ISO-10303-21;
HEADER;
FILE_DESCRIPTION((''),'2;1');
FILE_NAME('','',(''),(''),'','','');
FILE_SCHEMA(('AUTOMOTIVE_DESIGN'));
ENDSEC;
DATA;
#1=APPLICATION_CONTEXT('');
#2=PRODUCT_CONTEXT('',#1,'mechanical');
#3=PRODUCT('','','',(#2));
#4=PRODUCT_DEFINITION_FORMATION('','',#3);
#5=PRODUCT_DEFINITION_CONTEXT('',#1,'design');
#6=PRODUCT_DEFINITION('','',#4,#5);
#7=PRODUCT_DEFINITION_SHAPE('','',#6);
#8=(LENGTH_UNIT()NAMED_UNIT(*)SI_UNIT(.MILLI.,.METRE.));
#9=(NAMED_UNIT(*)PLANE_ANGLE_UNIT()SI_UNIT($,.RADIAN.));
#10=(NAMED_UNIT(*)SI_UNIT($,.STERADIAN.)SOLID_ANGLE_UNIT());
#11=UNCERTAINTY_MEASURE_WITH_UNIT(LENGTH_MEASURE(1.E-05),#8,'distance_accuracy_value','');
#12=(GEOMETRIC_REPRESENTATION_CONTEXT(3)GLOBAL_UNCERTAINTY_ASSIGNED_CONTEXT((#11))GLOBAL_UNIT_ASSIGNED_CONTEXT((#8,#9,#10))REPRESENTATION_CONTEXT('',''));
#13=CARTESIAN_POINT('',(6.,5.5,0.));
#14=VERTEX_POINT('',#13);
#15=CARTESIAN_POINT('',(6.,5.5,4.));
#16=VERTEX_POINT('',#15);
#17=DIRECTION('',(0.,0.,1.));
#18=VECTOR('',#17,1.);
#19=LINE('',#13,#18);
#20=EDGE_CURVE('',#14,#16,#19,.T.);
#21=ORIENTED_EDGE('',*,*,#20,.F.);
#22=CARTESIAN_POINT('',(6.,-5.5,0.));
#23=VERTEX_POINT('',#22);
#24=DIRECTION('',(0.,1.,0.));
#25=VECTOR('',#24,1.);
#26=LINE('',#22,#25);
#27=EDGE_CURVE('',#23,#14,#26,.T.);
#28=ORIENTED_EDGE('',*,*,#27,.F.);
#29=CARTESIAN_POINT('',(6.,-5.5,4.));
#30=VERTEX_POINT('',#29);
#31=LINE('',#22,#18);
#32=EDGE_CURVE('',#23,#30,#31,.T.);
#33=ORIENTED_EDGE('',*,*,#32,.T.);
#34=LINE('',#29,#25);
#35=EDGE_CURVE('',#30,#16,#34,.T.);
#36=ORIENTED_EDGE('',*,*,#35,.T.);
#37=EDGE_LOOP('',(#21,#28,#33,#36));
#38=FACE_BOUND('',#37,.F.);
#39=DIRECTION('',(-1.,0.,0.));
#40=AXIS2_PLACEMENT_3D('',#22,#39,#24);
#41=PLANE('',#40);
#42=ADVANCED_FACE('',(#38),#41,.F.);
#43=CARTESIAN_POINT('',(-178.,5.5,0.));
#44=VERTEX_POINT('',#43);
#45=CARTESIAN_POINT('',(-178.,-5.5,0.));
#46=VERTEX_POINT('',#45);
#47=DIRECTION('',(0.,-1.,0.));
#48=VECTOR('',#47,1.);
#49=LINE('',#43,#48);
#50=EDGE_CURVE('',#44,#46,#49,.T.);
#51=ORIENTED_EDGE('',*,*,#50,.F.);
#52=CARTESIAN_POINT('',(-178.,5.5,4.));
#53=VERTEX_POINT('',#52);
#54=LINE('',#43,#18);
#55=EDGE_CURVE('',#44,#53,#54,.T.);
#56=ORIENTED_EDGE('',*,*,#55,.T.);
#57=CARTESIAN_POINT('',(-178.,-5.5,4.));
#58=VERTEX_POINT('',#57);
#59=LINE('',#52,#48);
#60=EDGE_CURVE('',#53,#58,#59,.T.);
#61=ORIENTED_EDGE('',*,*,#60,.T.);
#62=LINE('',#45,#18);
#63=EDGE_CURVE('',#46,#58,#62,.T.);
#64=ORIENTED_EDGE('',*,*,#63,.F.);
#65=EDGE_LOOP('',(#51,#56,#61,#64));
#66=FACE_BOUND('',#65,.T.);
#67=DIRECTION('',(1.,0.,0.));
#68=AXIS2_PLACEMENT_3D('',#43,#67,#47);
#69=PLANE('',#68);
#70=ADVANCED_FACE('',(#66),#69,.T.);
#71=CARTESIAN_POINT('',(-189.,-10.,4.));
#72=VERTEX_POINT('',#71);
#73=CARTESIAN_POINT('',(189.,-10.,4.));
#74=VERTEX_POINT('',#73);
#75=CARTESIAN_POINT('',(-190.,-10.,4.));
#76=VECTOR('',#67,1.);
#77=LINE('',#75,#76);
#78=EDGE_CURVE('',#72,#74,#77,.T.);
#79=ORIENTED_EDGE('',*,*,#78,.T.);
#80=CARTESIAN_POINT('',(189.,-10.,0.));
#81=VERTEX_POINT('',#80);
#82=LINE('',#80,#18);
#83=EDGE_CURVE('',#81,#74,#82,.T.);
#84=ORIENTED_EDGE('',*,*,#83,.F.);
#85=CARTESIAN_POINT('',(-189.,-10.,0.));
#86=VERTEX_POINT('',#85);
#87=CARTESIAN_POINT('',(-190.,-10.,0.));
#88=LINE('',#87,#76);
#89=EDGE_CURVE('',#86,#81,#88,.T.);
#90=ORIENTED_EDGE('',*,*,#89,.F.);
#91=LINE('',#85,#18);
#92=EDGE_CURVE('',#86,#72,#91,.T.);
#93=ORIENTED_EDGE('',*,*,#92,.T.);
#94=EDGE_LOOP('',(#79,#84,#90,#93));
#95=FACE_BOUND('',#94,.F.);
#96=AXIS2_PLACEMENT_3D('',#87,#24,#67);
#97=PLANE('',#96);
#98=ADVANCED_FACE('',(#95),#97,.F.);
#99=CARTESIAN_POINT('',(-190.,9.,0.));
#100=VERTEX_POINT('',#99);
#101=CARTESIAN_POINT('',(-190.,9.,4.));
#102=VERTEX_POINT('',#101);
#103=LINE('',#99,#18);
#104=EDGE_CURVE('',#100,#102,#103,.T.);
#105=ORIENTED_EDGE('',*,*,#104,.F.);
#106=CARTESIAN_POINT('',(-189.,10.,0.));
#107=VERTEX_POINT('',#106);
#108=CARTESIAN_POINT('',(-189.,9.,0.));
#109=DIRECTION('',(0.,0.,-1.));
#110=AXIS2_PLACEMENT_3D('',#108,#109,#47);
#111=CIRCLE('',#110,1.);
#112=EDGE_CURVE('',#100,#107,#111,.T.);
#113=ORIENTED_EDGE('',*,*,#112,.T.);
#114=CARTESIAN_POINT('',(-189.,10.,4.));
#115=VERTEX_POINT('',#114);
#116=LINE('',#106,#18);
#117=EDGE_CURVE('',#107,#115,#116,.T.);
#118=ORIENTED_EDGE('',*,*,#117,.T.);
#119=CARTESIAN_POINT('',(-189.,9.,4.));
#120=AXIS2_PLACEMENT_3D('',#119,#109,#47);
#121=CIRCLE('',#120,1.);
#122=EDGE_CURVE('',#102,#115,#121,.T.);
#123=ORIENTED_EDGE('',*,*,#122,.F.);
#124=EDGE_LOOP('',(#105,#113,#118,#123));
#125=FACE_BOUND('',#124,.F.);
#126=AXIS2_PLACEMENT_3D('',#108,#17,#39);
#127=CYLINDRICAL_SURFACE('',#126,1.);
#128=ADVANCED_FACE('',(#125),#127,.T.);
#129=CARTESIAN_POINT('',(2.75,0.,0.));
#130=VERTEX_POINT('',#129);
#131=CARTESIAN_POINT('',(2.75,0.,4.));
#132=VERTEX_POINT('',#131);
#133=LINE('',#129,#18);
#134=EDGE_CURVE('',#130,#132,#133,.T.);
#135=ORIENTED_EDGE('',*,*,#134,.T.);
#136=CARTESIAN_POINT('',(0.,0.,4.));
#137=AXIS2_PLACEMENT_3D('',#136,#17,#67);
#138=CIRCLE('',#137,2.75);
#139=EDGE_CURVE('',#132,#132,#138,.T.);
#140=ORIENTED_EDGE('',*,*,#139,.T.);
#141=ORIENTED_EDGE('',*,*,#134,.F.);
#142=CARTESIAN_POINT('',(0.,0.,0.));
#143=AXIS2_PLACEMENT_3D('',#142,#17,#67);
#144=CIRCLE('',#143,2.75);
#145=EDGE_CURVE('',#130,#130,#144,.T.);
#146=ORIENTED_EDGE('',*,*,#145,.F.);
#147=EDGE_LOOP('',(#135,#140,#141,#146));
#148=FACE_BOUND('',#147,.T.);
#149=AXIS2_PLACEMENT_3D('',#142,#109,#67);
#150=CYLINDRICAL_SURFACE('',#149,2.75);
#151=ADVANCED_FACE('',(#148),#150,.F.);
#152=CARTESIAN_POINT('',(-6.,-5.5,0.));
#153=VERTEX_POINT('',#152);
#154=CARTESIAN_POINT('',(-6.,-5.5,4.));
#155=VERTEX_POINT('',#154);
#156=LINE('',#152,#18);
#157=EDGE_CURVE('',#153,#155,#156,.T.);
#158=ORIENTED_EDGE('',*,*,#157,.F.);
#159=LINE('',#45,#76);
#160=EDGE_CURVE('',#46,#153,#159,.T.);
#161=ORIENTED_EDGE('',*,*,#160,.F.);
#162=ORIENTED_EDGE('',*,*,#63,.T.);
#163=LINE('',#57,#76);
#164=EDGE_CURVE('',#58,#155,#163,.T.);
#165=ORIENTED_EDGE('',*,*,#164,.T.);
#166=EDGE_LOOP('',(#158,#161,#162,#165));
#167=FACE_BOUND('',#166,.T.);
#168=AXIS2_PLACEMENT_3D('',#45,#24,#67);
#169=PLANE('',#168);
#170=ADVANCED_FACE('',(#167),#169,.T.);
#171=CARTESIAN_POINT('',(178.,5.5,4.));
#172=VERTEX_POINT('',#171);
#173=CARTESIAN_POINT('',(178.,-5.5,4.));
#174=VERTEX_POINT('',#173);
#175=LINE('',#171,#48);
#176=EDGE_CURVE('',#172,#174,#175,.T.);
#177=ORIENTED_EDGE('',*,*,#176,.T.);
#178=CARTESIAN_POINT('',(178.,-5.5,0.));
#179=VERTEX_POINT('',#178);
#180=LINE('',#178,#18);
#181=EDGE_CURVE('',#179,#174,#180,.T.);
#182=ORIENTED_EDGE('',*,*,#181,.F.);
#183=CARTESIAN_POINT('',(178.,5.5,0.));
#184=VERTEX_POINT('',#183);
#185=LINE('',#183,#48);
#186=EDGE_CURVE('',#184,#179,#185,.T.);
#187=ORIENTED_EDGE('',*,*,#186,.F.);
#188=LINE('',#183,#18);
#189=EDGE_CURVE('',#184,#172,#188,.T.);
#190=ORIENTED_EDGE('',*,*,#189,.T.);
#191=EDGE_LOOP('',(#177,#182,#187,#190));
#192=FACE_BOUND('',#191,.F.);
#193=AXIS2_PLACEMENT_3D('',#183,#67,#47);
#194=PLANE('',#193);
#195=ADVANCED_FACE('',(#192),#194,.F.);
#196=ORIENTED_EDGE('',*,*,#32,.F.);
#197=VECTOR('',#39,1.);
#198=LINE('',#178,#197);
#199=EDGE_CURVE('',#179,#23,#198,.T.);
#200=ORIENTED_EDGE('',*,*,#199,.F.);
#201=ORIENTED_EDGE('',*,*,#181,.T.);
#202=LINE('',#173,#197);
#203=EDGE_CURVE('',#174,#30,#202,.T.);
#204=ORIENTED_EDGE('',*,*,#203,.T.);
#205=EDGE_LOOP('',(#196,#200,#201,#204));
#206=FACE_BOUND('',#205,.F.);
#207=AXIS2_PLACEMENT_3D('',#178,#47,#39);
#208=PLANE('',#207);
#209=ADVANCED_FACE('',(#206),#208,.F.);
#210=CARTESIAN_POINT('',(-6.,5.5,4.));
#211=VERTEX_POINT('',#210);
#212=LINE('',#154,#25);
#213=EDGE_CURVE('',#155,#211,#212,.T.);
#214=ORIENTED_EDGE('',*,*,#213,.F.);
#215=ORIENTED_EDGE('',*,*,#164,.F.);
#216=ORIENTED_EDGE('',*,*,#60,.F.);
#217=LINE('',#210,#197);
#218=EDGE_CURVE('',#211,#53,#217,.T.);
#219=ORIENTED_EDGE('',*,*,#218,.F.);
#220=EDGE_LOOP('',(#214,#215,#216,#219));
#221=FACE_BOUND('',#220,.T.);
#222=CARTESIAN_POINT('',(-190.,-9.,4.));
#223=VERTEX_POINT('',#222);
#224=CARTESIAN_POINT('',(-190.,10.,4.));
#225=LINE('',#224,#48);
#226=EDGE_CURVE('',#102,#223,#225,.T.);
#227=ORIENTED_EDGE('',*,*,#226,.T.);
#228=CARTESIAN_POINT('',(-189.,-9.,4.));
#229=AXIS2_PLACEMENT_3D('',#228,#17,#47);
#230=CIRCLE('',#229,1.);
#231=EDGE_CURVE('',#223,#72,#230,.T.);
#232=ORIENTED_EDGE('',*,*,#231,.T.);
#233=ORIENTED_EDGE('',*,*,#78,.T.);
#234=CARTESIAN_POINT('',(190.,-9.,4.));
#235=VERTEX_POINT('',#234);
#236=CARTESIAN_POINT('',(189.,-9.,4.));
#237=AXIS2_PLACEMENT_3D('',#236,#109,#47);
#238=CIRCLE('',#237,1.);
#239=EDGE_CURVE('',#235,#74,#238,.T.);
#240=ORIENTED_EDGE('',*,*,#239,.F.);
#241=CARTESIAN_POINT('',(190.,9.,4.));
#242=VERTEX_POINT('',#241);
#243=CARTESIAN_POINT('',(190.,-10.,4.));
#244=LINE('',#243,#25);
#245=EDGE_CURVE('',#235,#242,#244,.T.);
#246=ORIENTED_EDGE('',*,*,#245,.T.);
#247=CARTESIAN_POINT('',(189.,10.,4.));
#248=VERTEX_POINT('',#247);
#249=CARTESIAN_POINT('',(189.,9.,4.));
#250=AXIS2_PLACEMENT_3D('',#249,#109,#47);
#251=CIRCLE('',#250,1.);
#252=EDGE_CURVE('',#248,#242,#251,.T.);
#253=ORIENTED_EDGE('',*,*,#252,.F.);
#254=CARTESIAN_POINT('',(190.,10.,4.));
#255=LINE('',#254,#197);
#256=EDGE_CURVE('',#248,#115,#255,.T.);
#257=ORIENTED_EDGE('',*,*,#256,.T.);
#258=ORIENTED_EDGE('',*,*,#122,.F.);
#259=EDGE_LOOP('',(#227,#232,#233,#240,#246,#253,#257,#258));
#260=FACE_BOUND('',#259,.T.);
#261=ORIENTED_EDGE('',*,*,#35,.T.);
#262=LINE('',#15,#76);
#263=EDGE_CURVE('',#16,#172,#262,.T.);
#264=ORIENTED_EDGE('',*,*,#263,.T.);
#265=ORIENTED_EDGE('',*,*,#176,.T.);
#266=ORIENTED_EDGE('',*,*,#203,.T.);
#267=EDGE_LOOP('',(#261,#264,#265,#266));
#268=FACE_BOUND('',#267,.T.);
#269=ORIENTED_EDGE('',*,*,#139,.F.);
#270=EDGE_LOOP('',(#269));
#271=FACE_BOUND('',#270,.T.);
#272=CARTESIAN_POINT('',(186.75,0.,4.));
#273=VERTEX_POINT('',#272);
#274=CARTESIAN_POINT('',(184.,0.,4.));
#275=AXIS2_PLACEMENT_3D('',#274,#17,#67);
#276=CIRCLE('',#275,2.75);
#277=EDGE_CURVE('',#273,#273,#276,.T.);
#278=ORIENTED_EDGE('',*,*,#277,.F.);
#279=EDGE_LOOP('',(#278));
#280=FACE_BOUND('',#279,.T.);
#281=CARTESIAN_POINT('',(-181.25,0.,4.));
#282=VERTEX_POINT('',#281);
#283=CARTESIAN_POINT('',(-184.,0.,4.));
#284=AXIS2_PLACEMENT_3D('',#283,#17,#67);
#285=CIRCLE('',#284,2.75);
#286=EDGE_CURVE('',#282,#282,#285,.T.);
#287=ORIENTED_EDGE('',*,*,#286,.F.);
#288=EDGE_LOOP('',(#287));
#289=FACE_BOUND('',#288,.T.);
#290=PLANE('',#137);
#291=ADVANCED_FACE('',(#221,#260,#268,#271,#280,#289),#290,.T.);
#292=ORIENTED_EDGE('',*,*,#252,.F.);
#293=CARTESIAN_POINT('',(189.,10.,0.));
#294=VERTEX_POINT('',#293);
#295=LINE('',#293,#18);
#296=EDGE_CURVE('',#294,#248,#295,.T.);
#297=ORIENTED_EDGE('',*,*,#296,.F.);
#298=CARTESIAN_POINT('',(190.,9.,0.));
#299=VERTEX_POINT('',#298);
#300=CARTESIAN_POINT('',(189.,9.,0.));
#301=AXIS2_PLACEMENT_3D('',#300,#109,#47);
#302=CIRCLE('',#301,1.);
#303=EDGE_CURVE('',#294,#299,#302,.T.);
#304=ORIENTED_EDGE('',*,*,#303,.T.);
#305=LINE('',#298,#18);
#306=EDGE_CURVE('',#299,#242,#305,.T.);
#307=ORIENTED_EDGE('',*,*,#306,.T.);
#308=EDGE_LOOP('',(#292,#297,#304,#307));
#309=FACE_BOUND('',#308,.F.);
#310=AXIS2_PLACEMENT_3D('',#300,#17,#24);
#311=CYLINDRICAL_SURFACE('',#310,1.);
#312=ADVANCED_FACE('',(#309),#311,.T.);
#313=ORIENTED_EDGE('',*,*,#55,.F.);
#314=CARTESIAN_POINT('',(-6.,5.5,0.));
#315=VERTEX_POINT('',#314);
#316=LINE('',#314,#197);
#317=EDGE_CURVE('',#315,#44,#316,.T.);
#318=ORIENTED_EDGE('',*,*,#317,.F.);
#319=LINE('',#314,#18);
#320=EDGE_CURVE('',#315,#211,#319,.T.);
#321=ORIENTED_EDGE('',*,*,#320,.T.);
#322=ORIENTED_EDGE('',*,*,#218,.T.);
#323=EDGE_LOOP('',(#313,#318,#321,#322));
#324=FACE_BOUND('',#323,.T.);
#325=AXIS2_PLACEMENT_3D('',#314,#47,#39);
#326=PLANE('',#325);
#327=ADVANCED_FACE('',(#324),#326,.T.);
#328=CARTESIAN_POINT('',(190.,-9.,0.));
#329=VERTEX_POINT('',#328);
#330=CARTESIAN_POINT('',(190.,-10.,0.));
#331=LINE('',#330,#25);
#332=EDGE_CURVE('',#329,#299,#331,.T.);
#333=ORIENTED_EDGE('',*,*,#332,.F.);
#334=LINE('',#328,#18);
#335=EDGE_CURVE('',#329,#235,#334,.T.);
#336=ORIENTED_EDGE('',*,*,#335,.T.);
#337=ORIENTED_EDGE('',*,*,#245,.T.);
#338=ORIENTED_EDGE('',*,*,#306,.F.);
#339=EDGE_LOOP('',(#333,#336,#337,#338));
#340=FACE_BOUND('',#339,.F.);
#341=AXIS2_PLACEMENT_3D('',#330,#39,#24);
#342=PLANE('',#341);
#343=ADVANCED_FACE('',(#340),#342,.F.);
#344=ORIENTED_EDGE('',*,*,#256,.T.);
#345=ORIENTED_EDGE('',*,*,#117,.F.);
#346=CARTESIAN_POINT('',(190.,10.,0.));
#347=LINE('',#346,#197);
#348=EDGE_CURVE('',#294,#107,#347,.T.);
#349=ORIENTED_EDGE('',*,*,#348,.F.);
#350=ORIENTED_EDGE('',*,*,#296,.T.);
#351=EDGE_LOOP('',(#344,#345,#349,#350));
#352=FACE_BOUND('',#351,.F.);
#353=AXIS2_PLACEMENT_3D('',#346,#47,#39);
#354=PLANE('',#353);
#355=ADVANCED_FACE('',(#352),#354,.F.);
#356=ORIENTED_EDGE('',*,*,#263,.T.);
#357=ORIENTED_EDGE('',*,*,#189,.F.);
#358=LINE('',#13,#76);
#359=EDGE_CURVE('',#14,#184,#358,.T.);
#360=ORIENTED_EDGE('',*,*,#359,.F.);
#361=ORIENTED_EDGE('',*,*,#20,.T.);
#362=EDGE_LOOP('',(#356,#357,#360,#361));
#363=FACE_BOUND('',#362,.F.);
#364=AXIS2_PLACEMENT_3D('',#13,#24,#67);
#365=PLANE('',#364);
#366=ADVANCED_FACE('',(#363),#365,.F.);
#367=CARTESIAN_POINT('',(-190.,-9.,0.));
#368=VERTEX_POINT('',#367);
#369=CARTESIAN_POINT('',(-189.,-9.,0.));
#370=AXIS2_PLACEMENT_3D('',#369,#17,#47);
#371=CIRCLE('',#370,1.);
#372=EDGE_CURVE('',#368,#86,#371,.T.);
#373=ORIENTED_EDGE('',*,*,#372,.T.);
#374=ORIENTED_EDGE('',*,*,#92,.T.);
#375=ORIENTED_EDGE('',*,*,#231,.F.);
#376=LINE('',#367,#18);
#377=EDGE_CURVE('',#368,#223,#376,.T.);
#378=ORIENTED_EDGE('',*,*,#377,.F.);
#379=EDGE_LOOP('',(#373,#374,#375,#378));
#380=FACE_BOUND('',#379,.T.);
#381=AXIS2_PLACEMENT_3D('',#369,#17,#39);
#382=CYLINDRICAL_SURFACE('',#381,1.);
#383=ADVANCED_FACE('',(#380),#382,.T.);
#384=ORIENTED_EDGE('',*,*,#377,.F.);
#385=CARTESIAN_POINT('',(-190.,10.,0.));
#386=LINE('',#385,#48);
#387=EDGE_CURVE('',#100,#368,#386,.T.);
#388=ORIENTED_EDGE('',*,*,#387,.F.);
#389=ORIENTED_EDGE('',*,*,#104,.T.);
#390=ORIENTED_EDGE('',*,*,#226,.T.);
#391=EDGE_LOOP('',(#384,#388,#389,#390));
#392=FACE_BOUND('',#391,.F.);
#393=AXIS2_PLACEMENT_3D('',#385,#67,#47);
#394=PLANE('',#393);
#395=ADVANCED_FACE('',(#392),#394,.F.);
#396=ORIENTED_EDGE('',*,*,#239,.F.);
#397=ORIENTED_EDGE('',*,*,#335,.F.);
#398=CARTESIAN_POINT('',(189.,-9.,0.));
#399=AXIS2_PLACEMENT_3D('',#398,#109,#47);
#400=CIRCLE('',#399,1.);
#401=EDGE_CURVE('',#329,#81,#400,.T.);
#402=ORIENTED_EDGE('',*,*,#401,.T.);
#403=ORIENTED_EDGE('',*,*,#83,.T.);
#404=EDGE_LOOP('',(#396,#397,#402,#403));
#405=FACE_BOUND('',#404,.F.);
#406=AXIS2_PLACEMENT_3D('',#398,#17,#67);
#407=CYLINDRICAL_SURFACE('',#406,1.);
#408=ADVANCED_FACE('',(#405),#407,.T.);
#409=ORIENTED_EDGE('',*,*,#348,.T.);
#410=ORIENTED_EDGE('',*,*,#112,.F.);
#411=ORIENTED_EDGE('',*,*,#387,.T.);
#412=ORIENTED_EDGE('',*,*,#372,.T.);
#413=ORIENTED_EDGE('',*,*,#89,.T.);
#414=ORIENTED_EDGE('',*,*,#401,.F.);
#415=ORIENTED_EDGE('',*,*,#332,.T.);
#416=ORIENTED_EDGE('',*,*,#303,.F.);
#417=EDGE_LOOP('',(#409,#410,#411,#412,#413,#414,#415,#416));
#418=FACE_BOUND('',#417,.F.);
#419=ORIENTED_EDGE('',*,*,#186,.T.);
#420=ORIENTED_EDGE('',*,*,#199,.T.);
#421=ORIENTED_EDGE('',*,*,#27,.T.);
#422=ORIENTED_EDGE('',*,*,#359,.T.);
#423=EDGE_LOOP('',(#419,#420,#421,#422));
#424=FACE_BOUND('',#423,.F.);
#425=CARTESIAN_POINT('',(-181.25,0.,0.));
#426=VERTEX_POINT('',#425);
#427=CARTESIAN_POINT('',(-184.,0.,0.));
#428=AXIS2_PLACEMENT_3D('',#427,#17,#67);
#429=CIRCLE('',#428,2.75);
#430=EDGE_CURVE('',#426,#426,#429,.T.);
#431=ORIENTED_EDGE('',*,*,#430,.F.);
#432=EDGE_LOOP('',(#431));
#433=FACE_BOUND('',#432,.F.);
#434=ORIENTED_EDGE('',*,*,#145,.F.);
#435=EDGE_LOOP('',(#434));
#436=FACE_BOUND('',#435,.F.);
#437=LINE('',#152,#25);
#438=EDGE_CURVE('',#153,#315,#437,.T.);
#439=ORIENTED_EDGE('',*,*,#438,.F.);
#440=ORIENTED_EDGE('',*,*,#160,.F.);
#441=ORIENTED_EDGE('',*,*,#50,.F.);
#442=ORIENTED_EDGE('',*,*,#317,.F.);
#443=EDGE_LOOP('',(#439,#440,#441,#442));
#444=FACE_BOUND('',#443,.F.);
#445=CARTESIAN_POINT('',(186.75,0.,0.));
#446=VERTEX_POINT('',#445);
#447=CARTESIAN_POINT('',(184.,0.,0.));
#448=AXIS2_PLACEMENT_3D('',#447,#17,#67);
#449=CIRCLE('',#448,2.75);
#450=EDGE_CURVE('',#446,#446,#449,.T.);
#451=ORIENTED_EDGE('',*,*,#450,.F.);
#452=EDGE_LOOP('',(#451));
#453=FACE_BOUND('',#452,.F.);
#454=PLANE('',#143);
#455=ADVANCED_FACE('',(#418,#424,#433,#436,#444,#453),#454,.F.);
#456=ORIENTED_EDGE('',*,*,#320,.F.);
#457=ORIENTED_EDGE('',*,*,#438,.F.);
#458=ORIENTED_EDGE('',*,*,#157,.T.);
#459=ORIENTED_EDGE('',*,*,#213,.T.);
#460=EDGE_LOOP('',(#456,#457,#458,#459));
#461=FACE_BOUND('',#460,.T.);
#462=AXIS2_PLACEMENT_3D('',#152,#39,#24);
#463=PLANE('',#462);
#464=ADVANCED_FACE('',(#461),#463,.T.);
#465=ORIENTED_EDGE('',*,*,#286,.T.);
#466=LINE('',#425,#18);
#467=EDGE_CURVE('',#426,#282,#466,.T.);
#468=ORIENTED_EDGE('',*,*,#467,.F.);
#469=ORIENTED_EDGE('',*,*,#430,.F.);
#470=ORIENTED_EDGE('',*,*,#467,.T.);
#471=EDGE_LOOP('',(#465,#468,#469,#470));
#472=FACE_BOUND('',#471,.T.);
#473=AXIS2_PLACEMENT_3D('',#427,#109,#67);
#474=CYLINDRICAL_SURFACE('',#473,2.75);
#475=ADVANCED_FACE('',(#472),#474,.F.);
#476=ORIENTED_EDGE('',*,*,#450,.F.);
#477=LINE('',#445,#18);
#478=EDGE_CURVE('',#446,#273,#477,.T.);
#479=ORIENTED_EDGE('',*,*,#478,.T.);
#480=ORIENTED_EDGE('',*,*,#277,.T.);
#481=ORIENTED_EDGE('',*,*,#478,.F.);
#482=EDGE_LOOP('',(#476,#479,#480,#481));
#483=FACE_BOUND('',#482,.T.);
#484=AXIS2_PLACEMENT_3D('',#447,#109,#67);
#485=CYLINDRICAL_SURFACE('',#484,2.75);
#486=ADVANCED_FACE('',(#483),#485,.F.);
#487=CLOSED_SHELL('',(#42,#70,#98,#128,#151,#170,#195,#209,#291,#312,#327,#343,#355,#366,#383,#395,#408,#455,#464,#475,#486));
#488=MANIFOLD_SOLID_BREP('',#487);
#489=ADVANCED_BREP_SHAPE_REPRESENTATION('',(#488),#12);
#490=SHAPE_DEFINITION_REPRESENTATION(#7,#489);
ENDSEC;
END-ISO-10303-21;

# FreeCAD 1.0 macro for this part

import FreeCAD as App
import Part
import Sketcher

V = App.Vector
Q = App.Units.Quantity


def edges_at(feature, points):
    """Names of the edges that pass closest to the given points."""
    edges = feature.Shape.Edges
    near = lambda p: min(range(len(edges)), key=lambda i: edges[i].distToShape(Part.Vertex(*p))[0])
    return sorted({f"Edge{near(p) + 1}" for p in points})


def add_polygon(sketch, points):
    """Adds a closed chain of lines whose ends are joined by coincident constraints."""
    first, n = sketch.GeometryCount, len(points)
    for a, b in zip(points, points[1:] + points[:1]):
        sketch.addGeometry(Part.LineSegment(App.Vector(*a, 0), App.Vector(*b, 0)), False)
    for i in range(n):
        sketch.addConstraint(Sketcher.Constraint("Coincident", first + i, 2, first + (i + 1) % n, 1))

doc = App.newDocument("Part")
body = doc.addObject("PartDesign::Body", "Body")

# Sketch on XY plane
sketch1 = doc.addObject("Sketcher::SketchObject", "Sketch")
body.addObject(sketch1)
sketch1.AttachmentSupport = (doc.XY_Plane, [""])
sketch1.MapMode = "FlatFace"
add_polygon(sketch1, [(-190, 10), (-190, -10), (190, -10), (190, 10)])  # lines 0-3
sketch1.addGeometry(Part.Circle(V(-184, 0, 0), V(0, 0, 1), 2.8), False)  # 4
add_polygon(sketch1, [(-6, -5.5), (-178, -5.5), (-178, 5.5), (-6, 5.5)])  # lines 5-8
sketch1.addGeometry(Part.Circle(V(0, 0, 0), V(0, 0, 1), 2.8), False)  # 9
add_polygon(sketch1, [(178, 5.5), (178, -5.5), (6, -5.5), (6, 5.5)])  # lines 10-13
sketch1.addGeometry(Part.Circle(V(184, 0, 0), V(0, 0, 1), 2.8), False)  # 14
sketch1.addConstraint(Sketcher.Constraint("Vertical", 0))
sketch1.addConstraint(Sketcher.Constraint("Horizontal", 1))
sketch1.addConstraint(Sketcher.Constraint("Vertical", 2))
sketch1.addConstraint(Sketcher.Constraint("Horizontal", 3))
sketch1.addConstraint(Sketcher.Constraint("Horizontal", 5))
sketch1.addConstraint(Sketcher.Constraint("Vertical", 6))
sketch1.addConstraint(Sketcher.Constraint("Horizontal", 7))
sketch1.addConstraint(Sketcher.Constraint("Vertical", 8))
sketch1.addConstraint(Sketcher.Constraint("Vertical", 10))
sketch1.addConstraint(Sketcher.Constraint("Horizontal", 11))
sketch1.addConstraint(Sketcher.Constraint("Vertical", 12))
sketch1.addConstraint(Sketcher.Constraint("Horizontal", 13))
sketch1.addConstraint(Sketcher.Constraint("Coincident", 9, 3, -1, 1))
sketch1.addConstraint(Sketcher.Constraint("Equal", 4, 9))
sketch1.addConstraint(Sketcher.Constraint("Equal", 9, 14))
sketch1.addConstraint(Sketcher.Constraint("Symmetric", 4, 3, 14, 3, -1, 1))
sketch1.addConstraint(Sketcher.Constraint("Symmetric", 0, 2, 2, 2, -1, 1))
sketch1.addConstraint(Sketcher.Constraint("Symmetric", 6, 2, 10, 2, -1, 1))
sketch1.addConstraint(Sketcher.Constraint("Symmetric", 8, 2, 12, 2, -1, 1))
sketch1.addConstraint(Sketcher.Constraint("PointOnObject", 4, 3, -1))
sketch1.addConstraint(Sketcher.Constraint("Horizontal", 8, 2, 10, 2))
sketch1.addConstraint(Sketcher.Constraint("Diameter", 4, Q("5.5 mm")))
sketch1.addConstraint(Sketcher.Constraint("DistanceX", 1, 1, 1, 2, Q("380 mm")))
sketch1.addConstraint(Sketcher.Constraint("DistanceY", 0, 2, 0, 1, Q("20 mm")))
sketch1.addConstraint(Sketcher.Constraint("DistanceY", 6, 1, 6, 2, Q("11 mm")))
sketch1.addConstraint(Sketcher.Constraint("DistanceX", 7, 2, -1, 1, Q("6 mm")))
sketch1.addConstraint(Sketcher.Constraint("DistanceX", 0, 2, 4, 3, Q("6 mm")))
sketch1.addConstraint(Sketcher.Constraint("DistanceX", 4, 3, 5, 2, Q("6 mm")))
pad1 = doc.addObject("PartDesign::Pad", "Pad")
body.addObject(pad1)
pad1.Profile = sketch1
pad1.Length = 4
doc.recompute()

fillet = doc.addObject("PartDesign::Fillet", "Fillet")
body.addObject(fillet)
fillet.Base = (pad1, edges_at(pad1, [
    (-190, -10, 2),
    (-190, 10, 2),
    (190, -10, 2),
    (190, 10, 2),
]))
fillet.Radius = 1

doc.recompute()
